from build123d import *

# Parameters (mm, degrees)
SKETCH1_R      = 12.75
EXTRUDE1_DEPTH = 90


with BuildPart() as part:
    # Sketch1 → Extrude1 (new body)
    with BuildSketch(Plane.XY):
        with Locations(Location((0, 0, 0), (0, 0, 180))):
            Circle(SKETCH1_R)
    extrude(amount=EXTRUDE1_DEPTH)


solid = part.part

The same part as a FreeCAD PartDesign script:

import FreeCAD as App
import Part
import Sketcher
from FreeCAD import Vector
Q = App.Units.Quantity

doc = App.newDocument("Part")
body = doc.addObject("PartDesign::Body", "Body")

# Sketch on XY plane
sketch1 = doc.addObject("Sketcher::SketchObject", "Sketch")
body.addObject(sketch1)
sketch1.AttachmentSupport = (doc.XY_Plane, [""])
sketch1.MapMode = "FlatFace"
sketch1.addGeometry(Part.Circle(Vector(0, 0, 0), Vector(0, 0, 1), 12.75), False)
sketch1.addConstraint(Sketcher.Constraint("Coincident", 0, 3, -1, 1))
sketch1.addConstraint(Sketcher.Constraint("Diameter", 0, Q("25.5 mm")))
pad1 = doc.addObject("PartDesign::Pad", "Pad")
body.addObject(pad1)
pad1.Profile = sketch1
pad1.Length = 90

doc.recompute()
